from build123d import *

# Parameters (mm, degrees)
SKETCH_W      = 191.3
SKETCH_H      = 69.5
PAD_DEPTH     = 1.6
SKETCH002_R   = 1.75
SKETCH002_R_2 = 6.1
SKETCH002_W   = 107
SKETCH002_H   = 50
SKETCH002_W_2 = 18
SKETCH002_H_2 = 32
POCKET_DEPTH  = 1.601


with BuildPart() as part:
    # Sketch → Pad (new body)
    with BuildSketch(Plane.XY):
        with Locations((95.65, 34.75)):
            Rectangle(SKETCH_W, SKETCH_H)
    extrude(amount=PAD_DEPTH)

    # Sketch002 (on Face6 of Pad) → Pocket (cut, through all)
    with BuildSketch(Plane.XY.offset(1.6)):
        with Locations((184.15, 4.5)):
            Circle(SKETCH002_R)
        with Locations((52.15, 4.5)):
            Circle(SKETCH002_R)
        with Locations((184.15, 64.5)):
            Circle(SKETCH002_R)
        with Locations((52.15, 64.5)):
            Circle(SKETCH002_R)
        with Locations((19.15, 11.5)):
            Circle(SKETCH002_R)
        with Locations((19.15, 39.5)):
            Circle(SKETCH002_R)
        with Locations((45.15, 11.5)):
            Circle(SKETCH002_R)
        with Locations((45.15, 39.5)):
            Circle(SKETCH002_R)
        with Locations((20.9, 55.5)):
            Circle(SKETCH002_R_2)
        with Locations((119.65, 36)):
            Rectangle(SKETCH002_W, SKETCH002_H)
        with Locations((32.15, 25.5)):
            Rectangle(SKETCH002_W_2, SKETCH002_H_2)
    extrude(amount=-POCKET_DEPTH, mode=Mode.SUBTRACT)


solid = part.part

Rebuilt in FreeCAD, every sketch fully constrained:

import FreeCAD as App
import Part
import Sketcher
from FreeCAD import Vector


def add_polygon(sketch, points):
    """Adds a closed chain of lines whose ends are joined by coincident constraints."""
    first, n = sketch.GeometryCount, len(points)
    for a, b in zip(points, points[1:] + points[:1]):
        sketch.addGeometry(Part.LineSegment(App.Vector(*a, 0), App.Vector(*b, 0)), False)
    for i in range(n):
        sketch.addConstraint(Sketcher.Constraint("Coincident", first + i, 2, first + (i + 1) % n, 1))

doc = App.newDocument("Part")
body = doc.addObject("PartDesign::Body", "Body")

# Sketch on XY plane
sketch1 = body.newObject("Sketcher::SketchObject", "Sketch")
sketch1.AttachmentSupport = (doc.getObject("XY_Plane"), [""])
sketch1.MapMode = "FlatFace"
add_polygon(sketch1, [(0, 70), (0, 0), (191, 0), (191, 70)])  # lines 0-3
sketch1.addConstraint(Sketcher.Constraint("Vertical", 0))
sketch1.addConstraint(Sketcher.Constraint("Horizontal", 1))
sketch1.addConstraint(Sketcher.Constraint("Vertical", 2))
sketch1.addConstraint(Sketcher.Constraint("Horizontal", 3))
sketch1.addConstraint(Sketcher.Constraint("Coincident", 0, 2, -1, 1))
sketch1.addConstraint(Sketcher.Constraint("DistanceX", 1, 1, 1, 2, 191.3))
sketch1.addConstraint(Sketcher.Constraint("DistanceY", 0, 2, 0, 1, 69.5))
pad1 = body.newObject("PartDesign::Pad", "Pad")
pad1.Profile = sketch1
pad1.Length = 1.6

# Sketch on XY plane
sketch2 = body.newObject("Sketcher::SketchObject", "Sketch001")
sketch2.AttachmentSupport = (doc.getObject("XY_Plane"), [""])
sketch2.MapMode = "FlatFace"
sketch2.AttachmentOffset = App.Placement(Vector(0, 0, 1.6), App.Rotation())
sketch2.addGeometry(Part.Circle(Vector(184.2, 4.5, 0), Vector(0, 0, 1), 1.8), False)  # 0
sketch2.addGeometry(Part.Circle(Vector(52.1, 4.5, 0), Vector(0, 0, 1), 1.8), False)  # 1
sketch2.addGeometry(Part.Circle(Vector(184.2, 64.5, 0), Vector(0, 0, 1), 1.8), False)  # 2
sketch2.addGeometry(Part.Circle(Vector(52.1, 64.5, 0), Vector(0, 0, 1), 1.8), False)  # 3
sketch2.addGeometry(Part.Circle(Vector(19.1, 11.5, 0), Vector(0, 0, 1), 1.8), False)  # 4
sketch2.addGeometry(Part.Circle(Vector(19.1, 39.5, 0), Vector(0, 0, 1), 1.8), False)  # 5
sketch2.addGeometry(Part.Circle(Vector(45.1, 11.5, 0), Vector(0, 0, 1), 1.8), False)  # 6
sketch2.addGeometry(Part.Circle(Vector(45.1, 39.5, 0), Vector(0, 0, 1), 1.8), False)  # 7
sketch2.addGeometry(Part.Circle(Vector(20.9, 55.5, 0), Vector(0, 0, 1), 6.1), False)  # 8
add_polygon(sketch2, [(66.2, 61), (66.2, 11), (173.2, 11), (173.2, 61)])  # lines 9-12
add_polygon(sketch2, [(23.1, 41.5), (23.1, 9.5), (41.1, 9.5), (41.1, 41.5)])  # lines 13-16
sketch2.addConstraint(Sketcher.Constraint("Vertical", 9))
sketch2.addConstraint(Sketcher.Constraint("Horizontal", 10))
sketch2.addConstraint(Sketcher.Constraint("Vertical", 11))
sketch2.addConstraint(Sketcher.Constraint("Horizontal", 12))
sketch2.addConstraint(Sketcher.Constraint("Vertical", 13))
sketch2.addConstraint(Sketcher.Constraint("Horizontal", 14))
sketch2.addConstraint(Sketcher.Constraint("Vertical", 15))
sketch2.addConstraint(Sketcher.Constraint("Horizontal", 16))
sketch2.addConstraint(Sketcher.Constraint("Equal", 0, 1))
sketch2.addConstraint(Sketcher.Constraint("Equal", 1, 2))
sketch2.addConstraint(Sketcher.Constraint("Equal", 2, 3))
sketch2.addConstraint(Sketcher.Constraint("Equal", 3, 4))
sketch2.addConstraint(Sketcher.Constraint("Equal", 4, 5))
sketch2.addConstraint(Sketcher.Constraint("Equal", 5, 6))
sketch2.addConstraint(Sketcher.Constraint("Equal", 6, 7))
sketch2.addConstraint(Sketcher.Constraint("Horizontal", 0, 3, 1, 3))
sketch2.addConstraint(Sketcher.Constraint("Horizontal", 2, 3, 3, 3))
sketch2.addConstraint(Sketcher.Constraint("Horizontal", 4, 3, 6, 3))
sketch2.addConstraint(Sketcher.Constraint("Horizontal", 5, 3, 7, 3))
sketch2.addConstraint(Sketcher.Constraint("Vertical", 0, 3, 2, 3))
sketch2.addConstraint(Sketcher.Constraint("Vertical", 1, 3, 3, 3))
sketch2.addConstraint(Sketcher.Constraint("Vertical", 4, 3, 5, 3))
sketch2.addConstraint(Sketcher.Constraint("Vertical", 6, 3, 7, 3))
sketch2.addConstraint(Sketcher.Constraint("Diameter", 0, 3.5))
sketch2.addConstraint(Sketcher.Constraint("Diameter", 8, 12.2))
sketch2.addConstraint(Sketcher.Constraint("DistanceX", 10, 1, 10, 2, 107.0))
sketch2.addConstraint(Sketcher.Constraint("DistanceX", 14, 1, 14, 2, 18.0))
sketch2.addConstraint(Sketcher.Constraint("DistanceY", 9, 2, 9, 1, 50.0))
sketch2.addConstraint(Sketcher.Constraint("DistanceY", 13, 2, 13, 1, 32.0))
sketch2.addConstraint(Sketcher.Constraint("DistanceY", -1, 1, 9, 2, 11.0))
sketch2.addConstraint(Sketcher.Constraint("DistanceX", 1, 3, 0, 3, 132.0))
sketch2.addConstraint(Sketcher.Constraint("DistanceY", 0, 3, 2, 3, 60.0))
sketch2.addConstraint(Sketcher.Constraint("DistanceX", 4, 3, 1, 3, 33.0))
sketch2.addConstraint(Sketcher.Constraint("DistanceY", 1, 3, 4, 3, 7.0))
sketch2.addConstraint(Sketcher.Constraint("DistanceY", 4, 3, 5, 3, 28.0))
sketch2.addConstraint(Sketcher.Constraint("DistanceX", 6, 3, 1, 3, 7.0))
sketch2.addConstraint(Sketcher.Constraint("DistanceY", 5, 3, 8, 3, 16.0))
sketch2.addConstraint(Sketcher.Constraint("DistanceX", 1, 3, 9, 2, 14.0))
sketch2.addConstraint(Sketcher.Constraint("DistanceX", 4, 3, 13, 2, 4.0))
sketch2.addConstraint(Sketcher.Constraint("DistanceY", 13, 2, 4, 3, 2.0))
sketch2.addConstraint(Sketcher.Constraint("DistanceY", -1, 1, 0, 3, 4.5))
sketch2.addConstraint(Sketcher.Constraint("DistanceX", -1, 1, 8, 3, 20.9))
sketch2.addConstraint(Sketcher.Constraint("DistanceX", -1, 1, 0, 3, 184.15))
pocket1 = body.newObject("PartDesign::Pocket", "Pocket")
pocket1.Profile = sketch2
pocket1.Type = "ThroughAll"

doc.recompute()
